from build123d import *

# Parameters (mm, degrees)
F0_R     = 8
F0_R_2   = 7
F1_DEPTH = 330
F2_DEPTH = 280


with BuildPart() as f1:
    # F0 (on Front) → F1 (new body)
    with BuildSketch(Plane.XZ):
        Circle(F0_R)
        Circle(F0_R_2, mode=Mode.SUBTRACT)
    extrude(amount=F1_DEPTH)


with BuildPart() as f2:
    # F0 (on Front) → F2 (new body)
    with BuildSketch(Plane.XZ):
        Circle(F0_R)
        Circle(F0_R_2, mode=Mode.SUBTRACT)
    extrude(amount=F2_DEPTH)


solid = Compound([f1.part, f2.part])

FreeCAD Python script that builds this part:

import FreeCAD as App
import Part
import Sketcher

V = App.Vector
Q = App.Units.Quantity

doc = App.newDocument("Part")
body = doc.addObject("PartDesign::Body", "Body")

sketch1 = body.newObject("Sketcher::SketchObject", "Sketch")
sketch1.AttachmentSupport = (doc.getObject("XZ_Plane"), [""])
sketch1.MapMode = "FlatFace"
sketch1.addGeometry([
    Part.Circle(V(0, 0, 0), V(0, 0, 1), 8),
    Part.Circle(V(0, 0, 0), V(0, 0, 1), 7),
], False)
sketch1.addConstraint([
    Sketcher.Constraint("Coincident", 0, 3, -1, 1),
    Sketcher.Constraint("Coincident", 1, 3, -1, 1),
    Sketcher.Constraint("Diameter", 0, Q("16 mm")),
    Sketcher.Constraint("Diameter", 1, Q("14 mm")),
])
pad1 = body.newObject("PartDesign::Pad", "Pad")
pad1.Profile = sketch1
pad1.Length = 330
body2 = doc.addObject("PartDesign::Body", "Body001")

sketch2 = body2.newObject("Sketcher::SketchObject", "Sketch001")
sketch2.AttachmentSupport = (doc.getObject("XZ_Plane001"), [""])
sketch2.MapMode = "FlatFace"
sketch2.addGeometry([
    Part.Circle(V(0, 0, 0), V(0, 0, 1), 8),
    Part.Circle(V(0, 0, 0), V(0, 0, 1), 7),
], False)
sketch2.addConstraint([
    Sketcher.Constraint("Coincident", 0, 3, -1, 1),
    Sketcher.Constraint("Coincident", 1, 3, -1, 1),
    Sketcher.Constraint("Diameter", 0, Q("16 mm")),
    Sketcher.Constraint("Diameter", 1, Q("14 mm")),
])
pad2 = body2.newObject("PartDesign::Pad", "Pad001")
pad2.Profile = sketch2
pad2.Length = 280

doc.recompute()
